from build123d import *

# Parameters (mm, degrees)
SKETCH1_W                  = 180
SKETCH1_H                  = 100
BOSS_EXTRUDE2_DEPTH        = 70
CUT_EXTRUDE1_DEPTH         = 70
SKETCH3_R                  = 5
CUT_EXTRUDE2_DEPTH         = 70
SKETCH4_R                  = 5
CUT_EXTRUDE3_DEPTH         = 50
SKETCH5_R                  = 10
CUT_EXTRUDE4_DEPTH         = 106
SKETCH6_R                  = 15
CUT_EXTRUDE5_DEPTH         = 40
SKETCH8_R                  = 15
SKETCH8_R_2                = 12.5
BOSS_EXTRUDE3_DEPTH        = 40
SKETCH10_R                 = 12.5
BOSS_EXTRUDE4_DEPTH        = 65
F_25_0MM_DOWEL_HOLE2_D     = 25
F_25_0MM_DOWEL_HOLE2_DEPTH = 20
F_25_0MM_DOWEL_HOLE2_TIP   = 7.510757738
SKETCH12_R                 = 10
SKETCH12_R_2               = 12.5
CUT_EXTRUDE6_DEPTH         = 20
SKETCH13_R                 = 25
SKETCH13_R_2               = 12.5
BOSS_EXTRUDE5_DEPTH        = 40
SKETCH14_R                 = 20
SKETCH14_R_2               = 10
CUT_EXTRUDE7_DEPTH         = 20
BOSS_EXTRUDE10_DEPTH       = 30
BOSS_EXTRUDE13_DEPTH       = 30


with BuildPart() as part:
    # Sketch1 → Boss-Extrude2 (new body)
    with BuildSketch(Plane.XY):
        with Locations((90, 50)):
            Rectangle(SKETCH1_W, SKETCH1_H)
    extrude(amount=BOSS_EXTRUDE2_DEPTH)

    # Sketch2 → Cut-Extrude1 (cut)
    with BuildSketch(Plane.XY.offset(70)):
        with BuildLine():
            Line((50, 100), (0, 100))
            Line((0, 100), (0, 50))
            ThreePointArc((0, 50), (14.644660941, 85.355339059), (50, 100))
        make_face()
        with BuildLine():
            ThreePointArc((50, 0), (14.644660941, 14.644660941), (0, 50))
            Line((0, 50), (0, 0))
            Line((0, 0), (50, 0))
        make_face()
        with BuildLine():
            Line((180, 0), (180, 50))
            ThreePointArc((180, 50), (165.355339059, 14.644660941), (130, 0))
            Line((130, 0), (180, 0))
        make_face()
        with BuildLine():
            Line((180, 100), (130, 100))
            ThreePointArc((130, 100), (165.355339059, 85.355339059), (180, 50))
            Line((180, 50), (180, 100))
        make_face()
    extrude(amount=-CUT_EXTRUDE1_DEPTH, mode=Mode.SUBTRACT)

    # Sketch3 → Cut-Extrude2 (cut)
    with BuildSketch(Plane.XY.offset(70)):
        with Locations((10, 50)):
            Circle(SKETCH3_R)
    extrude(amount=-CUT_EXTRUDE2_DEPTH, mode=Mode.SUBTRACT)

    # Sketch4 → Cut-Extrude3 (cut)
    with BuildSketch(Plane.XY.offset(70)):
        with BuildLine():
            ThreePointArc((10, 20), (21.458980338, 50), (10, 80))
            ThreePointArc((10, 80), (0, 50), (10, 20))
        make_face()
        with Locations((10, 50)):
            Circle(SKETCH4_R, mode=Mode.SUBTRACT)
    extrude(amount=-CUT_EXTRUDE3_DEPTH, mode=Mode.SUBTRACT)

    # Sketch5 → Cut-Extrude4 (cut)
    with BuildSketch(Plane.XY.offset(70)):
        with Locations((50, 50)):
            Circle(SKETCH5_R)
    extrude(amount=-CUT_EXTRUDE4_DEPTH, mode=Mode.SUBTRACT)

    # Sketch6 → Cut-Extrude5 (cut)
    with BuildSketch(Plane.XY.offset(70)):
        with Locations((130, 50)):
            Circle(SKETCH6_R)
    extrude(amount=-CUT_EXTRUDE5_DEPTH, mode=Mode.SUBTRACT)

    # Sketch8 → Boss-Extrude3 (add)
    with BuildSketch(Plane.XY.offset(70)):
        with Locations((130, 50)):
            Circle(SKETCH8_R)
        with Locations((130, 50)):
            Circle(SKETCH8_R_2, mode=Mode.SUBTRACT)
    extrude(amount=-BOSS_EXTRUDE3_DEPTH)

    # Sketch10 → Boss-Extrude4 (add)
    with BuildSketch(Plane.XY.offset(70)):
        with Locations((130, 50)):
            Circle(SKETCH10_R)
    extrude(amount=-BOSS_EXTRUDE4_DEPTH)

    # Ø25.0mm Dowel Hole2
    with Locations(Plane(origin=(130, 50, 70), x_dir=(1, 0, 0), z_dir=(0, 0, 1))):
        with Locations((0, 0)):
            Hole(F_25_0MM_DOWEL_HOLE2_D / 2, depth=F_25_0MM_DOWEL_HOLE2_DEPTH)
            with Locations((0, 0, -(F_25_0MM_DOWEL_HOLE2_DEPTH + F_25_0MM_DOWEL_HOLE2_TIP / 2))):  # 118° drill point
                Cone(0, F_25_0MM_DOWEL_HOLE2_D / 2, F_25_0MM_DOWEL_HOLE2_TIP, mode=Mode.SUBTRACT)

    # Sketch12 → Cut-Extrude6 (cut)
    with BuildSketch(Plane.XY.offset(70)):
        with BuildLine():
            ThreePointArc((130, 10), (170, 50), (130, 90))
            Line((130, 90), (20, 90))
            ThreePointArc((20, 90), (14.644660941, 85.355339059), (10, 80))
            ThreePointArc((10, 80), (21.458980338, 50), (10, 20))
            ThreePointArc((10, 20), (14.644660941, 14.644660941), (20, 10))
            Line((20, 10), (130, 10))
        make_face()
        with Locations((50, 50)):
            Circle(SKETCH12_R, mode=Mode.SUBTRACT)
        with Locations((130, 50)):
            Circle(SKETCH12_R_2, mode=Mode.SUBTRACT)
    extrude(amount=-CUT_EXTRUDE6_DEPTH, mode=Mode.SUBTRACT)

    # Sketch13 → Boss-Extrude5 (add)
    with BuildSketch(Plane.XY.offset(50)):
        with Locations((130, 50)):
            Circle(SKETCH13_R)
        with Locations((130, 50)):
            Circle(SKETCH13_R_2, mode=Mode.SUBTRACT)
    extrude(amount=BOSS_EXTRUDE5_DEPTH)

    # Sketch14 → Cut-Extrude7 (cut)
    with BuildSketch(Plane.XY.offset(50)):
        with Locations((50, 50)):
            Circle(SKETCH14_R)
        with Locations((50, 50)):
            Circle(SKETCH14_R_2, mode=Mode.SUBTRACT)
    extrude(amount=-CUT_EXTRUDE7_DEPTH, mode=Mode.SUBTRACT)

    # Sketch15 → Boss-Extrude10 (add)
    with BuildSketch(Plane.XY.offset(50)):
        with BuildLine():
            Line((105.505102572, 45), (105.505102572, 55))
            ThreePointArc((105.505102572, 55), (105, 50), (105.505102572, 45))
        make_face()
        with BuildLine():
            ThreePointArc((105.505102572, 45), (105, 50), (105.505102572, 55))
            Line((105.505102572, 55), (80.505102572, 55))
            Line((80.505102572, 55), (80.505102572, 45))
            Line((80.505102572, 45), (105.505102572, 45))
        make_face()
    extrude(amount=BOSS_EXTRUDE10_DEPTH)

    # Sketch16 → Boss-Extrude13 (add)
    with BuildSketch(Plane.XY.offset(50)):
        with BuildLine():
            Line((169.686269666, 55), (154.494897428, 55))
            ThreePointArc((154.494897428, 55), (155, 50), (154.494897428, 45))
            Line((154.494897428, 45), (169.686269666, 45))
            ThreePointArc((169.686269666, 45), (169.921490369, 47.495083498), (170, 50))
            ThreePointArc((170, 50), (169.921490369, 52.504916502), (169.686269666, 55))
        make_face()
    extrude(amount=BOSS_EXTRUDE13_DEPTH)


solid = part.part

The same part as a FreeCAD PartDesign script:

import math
import FreeCAD as App
import Part
import Sketcher

doc = App.newDocument("Part")
body = doc.addObject("PartDesign::Body", "Body")

# Sketch on XY plane
sketch1 = body.newObject("Sketcher::SketchObject", "Sketch")
sketch1.AttachmentSupport = (doc.getObject("XY_Plane"), [""])
sketch1.MapMode = "FlatFace"
sketch1.addGeometry(Part.LineSegment(App.Vector(0, 100, 0), App.Vector(0, 0, 0)), False)
sketch1.addGeometry(Part.LineSegment(App.Vector(0, 0, 0), App.Vector(180, 0, 0)), False)
sketch1.addGeometry(Part.LineSegment(App.Vector(180, 0, 0), App.Vector(180, 100, 0)), False)
sketch1.addGeometry(Part.LineSegment(App.Vector(180, 100, 0), App.Vector(0, 100, 0)), False)
sketch1.addConstraint(Sketcher.Constraint("Coincident", 0, 2, 1, 1))
sketch1.addConstraint(Sketcher.Constraint("Coincident", 1, 2, 2, 1))
sketch1.addConstraint(Sketcher.Constraint("Coincident", 2, 2, 3, 1))
sketch1.addConstraint(Sketcher.Constraint("Coincident", 3, 2, 0, 1))
sketch1.addConstraint(Sketcher.Constraint("Vertical", 0))
sketch1.addConstraint(Sketcher.Constraint("Horizontal", 1))
sketch1.addConstraint(Sketcher.Constraint("Vertical", 2))
sketch1.addConstraint(Sketcher.Constraint("Horizontal", 3))
sketch1.addConstraint(Sketcher.Constraint("Coincident", 0, 2, -1, 1))
sketch1.addConstraint(Sketcher.Constraint("DistanceX", 1, 1, 1, 2, 180.0))
sketch1.addConstraint(Sketcher.Constraint("DistanceY", 0, 2, 0, 1, 100.0))
pad1 = body.newObject("PartDesign::Pad", "Pad")
pad1.Profile = sketch1
pad1.Length = 70

# Sketch on XY plane
sketch2 = body.newObject("Sketcher::SketchObject", "Sketch001")
sketch2.AttachmentSupport = (doc.getObject("XY_Plane"), [""])
sketch2.MapMode = "FlatFace"
sketch2.AttachmentOffset = App.Placement(App.Vector(0, 0, 70), App.Rotation())
sketch2.addGeometry(Part.LineSegment(App.Vector(50, 100, 0), App.Vector(0, 100, 0)), False)
sketch2.addGeometry(Part.LineSegment(App.Vector(0, 100, 0), App.Vector(0, 50, 0)), False)
sketch2.addGeometry(Part.ArcOfCircle(Part.Circle(App.Vector(50, 50, 0), App.Vector(0, 0, 1), 50), math.radians(90), math.radians(180)), False)
sketch2.addGeometry(Part.ArcOfCircle(Part.Circle(App.Vector(50, 50, 0), App.Vector(0, 0, 1), 50), math.radians(-180), math.radians(-90)), False)
sketch2.addGeometry(Part.LineSegment(App.Vector(0, 50, 0), App.Vector(0, 0, 0)), False)
sketch2.addGeometry(Part.LineSegment(App.Vector(0, 0, 0), App.Vector(50, 0, 0)), False)
sketch2.addGeometry(Part.LineSegment(App.Vector(180, 0, 0), App.Vector(180, 50, 0)), False)
sketch2.addGeometry(Part.ArcOfCircle(Part.Circle(App.Vector(130, 50, 0), App.Vector(0, 0, 1), 50), math.radians(-90), math.radians(0)), False)
sketch2.addGeometry(Part.LineSegment(App.Vector(130, 0, 0), App.Vector(180, 0, 0)), False)
sketch2.addGeometry(Part.LineSegment(App.Vector(180, 100, 0), App.Vector(130, 100, 0)), False)
sketch2.addGeometry(Part.ArcOfCircle(Part.Circle(App.Vector(130, 50, 0), App.Vector(0, 0, 1), 50), math.radians(0), math.radians(90)), False)
sketch2.addGeometry(Part.LineSegment(App.Vector(180, 50, 0), App.Vector(180, 100, 0)), False)
sketch2.addConstraint(Sketcher.Constraint("Coincident", 0, 2, 1, 1))
sketch2.addConstraint(Sketcher.Constraint("Tangent", 1, 2, 2, 2))
sketch2.addConstraint(Sketcher.Constraint("Tangent", 2, 1, 0, 1))
sketch2.addConstraint(Sketcher.Constraint("Tangent", 3, 1, 4, 1))
sketch2.addConstraint(Sketcher.Constraint("Coincident", 4, 2, 5, 1))
sketch2.addConstraint(Sketcher.Constraint("Tangent", 5, 2, 3, 2))
sketch2.addConstraint(Sketcher.Constraint("Tangent", 6, 2, 7, 2))
sketch2.addConstraint(Sketcher.Constraint("Tangent", 7, 1, 8, 1))
sketch2.addConstraint(Sketcher.Constraint("Coincident", 8, 2, 6, 1))
sketch2.addConstraint(Sketcher.Constraint("Tangent", 9, 2, 10, 2))
sketch2.addConstraint(Sketcher.Constraint("Tangent", 10, 1, 11, 1))
sketch2.addConstraint(Sketcher.Constraint("Coincident", 11, 2, 9, 1))
sketch2.addConstraint(Sketcher.Constraint("Horizontal", 0))
sketch2.addConstraint(Sketcher.Constraint("Vertical", 1))
sketch2.addConstraint(Sketcher.Constraint("Vertical", 4))
sketch2.addConstraint(Sketcher.Constraint("Horizontal", 5))
sketch2.addConstraint(Sketcher.Constraint("Vertical", 6))
sketch2.addConstraint(Sketcher.Constraint("Horizontal", 8))
sketch2.addConstraint(Sketcher.Constraint("Horizontal", 9))
sketch2.addConstraint(Sketcher.Constraint("Vertical", 11))
sketch2.addConstraint(Sketcher.Constraint("Coincident", 4, 2, -1, 1))
sketch2.addConstraint(Sketcher.Constraint("Coincident", 3, 3, 2, 3))
sketch2.addConstraint(Sketcher.Constraint("Coincident", 10, 3, 7, 3))
sketch2.addConstraint(Sketcher.Constraint("Equal", 2, 3))
sketch2.addConstraint(Sketcher.Constraint("Equal", 3, 7))
sketch2.addConstraint(Sketcher.Constraint("Equal", 7, 10))
sketch2.addConstraint(Sketcher.Constraint("PointOnObject", 7, 1, -1))
sketch2.addConstraint(Sketcher.Constraint("Radius", 2, 50.0))
sketch2.addConstraint(Sketcher.Constraint("DistanceX", -1, 1, 7, 3, 130.0))
pocket1 = body.newObject("PartDesign::Pocket", "Pocket")
pocket1.Profile = sketch2
pocket1.Length = 70

# Sketch on XY plane
sketch3 = body.newObject("Sketcher::SketchObject", "Sketch002")
sketch3.AttachmentSupport = (doc.getObject("XY_Plane"), [""])
sketch3.MapMode = "FlatFace"
sketch3.AttachmentOffset = App.Placement(App.Vector(0, 0, 70), App.Rotation())
sketch3.addGeometry(Part.Circle(App.Vector(10, 50, 0), App.Vector(0, 0, 1), 5), False)
sketch3.addConstraint(Sketcher.Constraint("Diameter", 0, 10.0))
sketch3.addConstraint(Sketcher.Constraint("DistanceX", -1, 1, 0, 3, 10.0))
sketch3.addConstraint(Sketcher.Constraint("DistanceY", -1, 1, 0, 3, 50.0))
pocket2 = body.newObject("PartDesign::Pocket", "Pocket001")
pocket2.Profile = sketch3
pocket2.Length = 70

# Sketch on XY plane
sketch4 = body.newObject("Sketcher::SketchObject", "Sketch003")
sketch4.AttachmentSupport = (doc.getObject("XY_Plane"), [""])
sketch4.MapMode = "FlatFace"
sketch4.AttachmentOffset = App.Placement(App.Vector(0, 0, 70), App.Rotation())
sketch4.addGeometry(Part.ArcOfCircle(Part.Circle(App.Vector(-23.54102, 50, 0), App.Vector(0, 0, 1), 45), math.radians(-41.810315), math.radians(41.810315)), False)
sketch4.addGeometry(Part.ArcOfCircle(Part.Circle(App.Vector(50, 50, 0), App.Vector(0, 0, 1), 50), math.radians(143.130102), math.radians(216.869898)), False)
sketch4.addGeometry(Part.Circle(App.Vector(10, 50, 0), App.Vector(0, 0, 1), 5), False)
sketch4.addConstraint(Sketcher.Constraint("Coincident", 0, 1, 1, 2))
sketch4.addConstraint(Sketcher.Constraint("Coincident", 1, 1, 0, 2))
sketch4.addConstraint(Sketcher.Constraint("Horizontal", 0, 3, 1, 3))
sketch4.addConstraint(Sketcher.Constraint("Horizontal", 1, 3, 2, 3))
sketch4.addConstraint(Sketcher.Constraint("Vertical", 2, 3, 0, 1))
sketch4.addConstraint(Sketcher.Constraint("Diameter", 2, 10.0))
sketch4.addConstraint(Sketcher.Constraint("Radius", 0, 45.0))
sketch4.addConstraint(Sketcher.Constraint("Radius", 1, 50.0))
sketch4.addConstraint(Sketcher.Constraint("DistanceY", -1, 1, 0, 3, 50.0))
sketch4.addConstraint(Sketcher.Constraint("DistanceX", -1, 1, 1, 3, 50.0))
sketch4.addConstraint(Sketcher.Constraint("DistanceX", -1, 1, 2, 3, 10.0))
pocket3 = body.newObject("PartDesign::Pocket", "Pocket002")
pocket3.Profile = sketch4
pocket3.Length = 50

# Sketch on XY plane
sketch5 = body.newObject("Sketcher::SketchObject", "Sketch004")
sketch5.AttachmentSupport = (doc.getObject("XY_Plane"), [""])
sketch5.MapMode = "FlatFace"
sketch5.AttachmentOffset = App.Placement(App.Vector(0, 0, 70), App.Rotation())
sketch5.addGeometry(Part.Circle(App.Vector(50, 50, 0), App.Vector(0, 0, 1), 10), False)
sketch5.addConstraint(Sketcher.Constraint("Diameter", 0, 20.0))
sketch5.addConstraint(Sketcher.Constraint("DistanceX", -1, 1, 0, 3, 50.0))
sketch5.addConstraint(Sketcher.Constraint("DistanceY", -1, 1, 0, 3, 50.0))
pocket4 = body.newObject("PartDesign::Pocket", "Pocket003")
pocket4.Profile = sketch5
pocket4.Length = 106

# Sketch on XY plane
sketch6 = body.newObject("Sketcher::SketchObject", "Sketch005")
sketch6.AttachmentSupport = (doc.getObject("XY_Plane"), [""])
sketch6.MapMode = "FlatFace"
sketch6.AttachmentOffset = App.Placement(App.Vector(0, 0, 70), App.Rotation())
sketch6.addGeometry(Part.Circle(App.Vector(130, 50, 0), App.Vector(0, 0, 1), 15), False)
sketch6.addConstraint(Sketcher.Constraint("Diameter", 0, 30.0))
sketch6.addConstraint(Sketcher.Constraint("DistanceX", -1, 1, 0, 3, 130.0))
sketch6.addConstraint(Sketcher.Constraint("DistanceY", -1, 1, 0, 3, 50.0))
pocket5 = body.newObject("PartDesign::Pocket", "Pocket004")
pocket5.Profile = sketch6
pocket5.Length = 40

# Sketch on XY plane
sketch7 = body.newObject("Sketcher::SketchObject", "Sketch006")
sketch7.AttachmentSupport = (doc.getObject("XY_Plane"), [""])
sketch7.MapMode = "FlatFace"
sketch7.AttachmentOffset = App.Placement(App.Vector(0, 0, 70), App.Rotation())
sketch7.addGeometry(Part.Circle(App.Vector(130, 50, 0), App.Vector(0, 0, 1), 15), False)
sketch7.addGeometry(Part.Circle(App.Vector(130, 50, 0), App.Vector(0, 0, 1), 12.5), False)
sketch7.addConstraint(Sketcher.Constraint("Coincident", 1, 3, 0, 3))
sketch7.addConstraint(Sketcher.Constraint("Diameter", 0, 30.0))
sketch7.addConstraint(Sketcher.Constraint("Diameter", 1, 25.0))
sketch7.addConstraint(Sketcher.Constraint("DistanceX", -1, 1, 0, 3, 130.0))
sketch7.addConstraint(Sketcher.Constraint("DistanceY", -1, 1, 0, 3, 50.0))
pad2 = body.newObject("PartDesign::Pad", "Pad001")
pad2.Profile = sketch7
pad2.Length = 40
pad2.Reversed = True

# Sketch on XY plane
sketch8 = body.newObject("Sketcher::SketchObject", "Sketch007")
sketch8.AttachmentSupport = (doc.getObject("XY_Plane"), [""])
sketch8.MapMode = "FlatFace"
sketch8.AttachmentOffset = App.Placement(App.Vector(0, 0, 70), App.Rotation())
sketch8.addGeometry(Part.Circle(App.Vector(130, 50, 0), App.Vector(0, 0, 1), 12.5), False)
sketch8.addConstraint(Sketcher.Constraint("Diameter", 0, 25.0))
sketch8.addConstraint(Sketcher.Constraint("DistanceX", -1, 1, 0, 3, 130.0))
sketch8.addConstraint(Sketcher.Constraint("DistanceY", -1, 1, 0, 3, 50.0))
pad3 = body.newObject("PartDesign::Pad", "Pad002")
pad3.Profile = sketch8
pad3.Length = 65
pad3.Reversed = True

# Sketch on XY plane
sketch9 = body.newObject("Sketcher::SketchObject", "Sketch008")
sketch9.AttachmentSupport = (doc.getObject("XY_Plane"), [""])
sketch9.MapMode = "FlatFace"
sketch9.AttachmentOffset = App.Placement(App.Vector(0, 0, 70), App.Rotation())
sketch9.addGeometry(Part.Circle(App.Vector(130, 50, 0), App.Vector(0, 0, 1), 12.5), False)
sketch9.addConstraint(Sketcher.Constraint("Diameter", 0, 25.0))
sketch9.addConstraint(Sketcher.Constraint("DistanceX", -1, 1, 0, 3, 130.0))
sketch9.addConstraint(Sketcher.Constraint("DistanceY", -1, 1, 0, 3, 50.0))
doc.recompute()
hole = body.newObject("PartDesign::Hole", "Hole")
hole.Profile = sketch9
hole.ThreadType = "None"
hole.Diameter = 25
hole.DepthType = "Dimension"
hole.Depth = 20
hole.DrillPoint = "Angled"
hole.DrillPointAngle = 118

# Sketch on XY plane
sketch10 = body.newObject("Sketcher::SketchObject", "Sketch009")
sketch10.AttachmentSupport = (doc.getObject("XY_Plane"), [""])
sketch10.MapMode = "FlatFace"
sketch10.AttachmentOffset = App.Placement(App.Vector(0, 0, 70), App.Rotation())
sketch10.addGeometry(Part.ArcOfCircle(Part.Circle(App.Vector(130, 50, 0), App.Vector(0, 0, 1), 40), math.radians(-90), math.radians(90)), False)
sketch10.addGeometry(Part.LineSegment(App.Vector(130, 90, 0), App.Vector(20, 90, 0)), False)
sketch10.addGeometry(Part.ArcOfCircle(Part.Circle(App.Vector(50, 50, 0), App.Vector(0, 0, 1), 50), math.radians(126.869898), math.radians(143.130102)), False)
sketch10.addGeometry(Part.ArcOfCircle(Part.Circle(App.Vector(-23.54102, 50, 0), App.Vector(0, 0, 1), 45), math.radians(-41.810315), math.radians(41.810315)), False)
sketch10.addGeometry(Part.ArcOfCircle(Part.Circle(App.Vector(50, 50, 0), App.Vector(0, 0, 1), 50), math.radians(-143.130102), math.radians(-126.869898)), False)
sketch10.addGeometry(Part.LineSegment(App.Vector(20, 10, 0), App.Vector(130, 10, 0)), False)
sketch10.addGeometry(Part.Circle(App.Vector(50, 50, 0), App.Vector(0, 0, 1), 10), False)
sketch10.addGeometry(Part.Circle(App.Vector(130, 50, 0), App.Vector(0, 0, 1), 12.5), False)
sketch10.addConstraint(Sketcher.Constraint("Tangent", 0, 2, 1, 1))
sketch10.addConstraint(Sketcher.Constraint("Coincident", 1, 2, 2, 1))
sketch10.addConstraint(Sketcher.Constraint("Coincident", 2, 2, 3, 2))
sketch10.addConstraint(Sketcher.Constraint("Coincident", 3, 1, 4, 1))
sketch10.addConstraint(Sketcher.Constraint("Coincident", 4, 2, 5, 1))
sketch10.addConstraint(Sketcher.Constraint("Tangent", 5, 2, 0, 1))
sketch10.addConstraint(Sketcher.Constraint("Horizontal", 1))
sketch10.addConstraint(Sketcher.Constraint("Horizontal", 5))
sketch10.addConstraint(Sketcher.Constraint("Coincident", 4, 3, 2, 3))
sketch10.addConstraint(Sketcher.Constraint("Coincident", 6, 3, 2, 3))
sketch10.addConstraint(Sketcher.Constraint("Coincident", 7, 3, 0, 3))
sketch10.addConstraint(Sketcher.Constraint("Equal", 2, 4))
sketch10.addConstraint(Sketcher.Constraint("Horizontal", 0, 3, 2, 3))
sketch10.addConstraint(Sketcher.Constraint("Horizontal", 2, 3, 3, 3))
sketch10.addConstraint(Sketcher.Constraint("Diameter", 6, 20.0))
sketch10.addConstraint(Sketcher.Constraint("Diameter", 7, 25.0))
sketch10.addConstraint(Sketcher.Constraint("Radius", 0, 40.0))
sketch10.addConstraint(Sketcher.Constraint("Radius", 2, 50.0))
sketch10.addConstraint(Sketcher.Constraint("Radius", 3, 45.0))
sketch10.addConstraint(Sketcher.Constraint("DistanceX", 1, 2, 1, 1, 110.0))
sketch10.addConstraint(Sketcher.Constraint("DistanceX", -1, 1, 0, 3, 130.0))
sketch10.addConstraint(Sketcher.Constraint("DistanceY", -1, 1, 0, 3, 50.0))
sketch10.addConstraint(Sketcher.Constraint("DistanceX", -1, 1, 2, 2, 10.0))
pocket6 = body.newObject("PartDesign::Pocket", "Pocket005")
pocket6.Profile = sketch10
pocket6.Length = 20

# Sketch on XY plane
sketch11 = body.newObject("Sketcher::SketchObject", "Sketch010")
sketch11.AttachmentSupport = (doc.getObject("XY_Plane"), [""])
sketch11.MapMode = "FlatFace"
sketch11.AttachmentOffset = App.Placement(App.Vector(0, 0, 50), App.Rotation())
sketch11.addGeometry(Part.Circle(App.Vector(130, 50, 0), App.Vector(0, 0, 1), 25), False)
sketch11.addGeometry(Part.Circle(App.Vector(130, 50, 0), App.Vector(0, 0, 1), 12.5), False)
sketch11.addConstraint(Sketcher.Constraint("Coincident", 1, 3, 0, 3))
sketch11.addConstraint(Sketcher.Constraint("Diameter", 0, 50.0))
sketch11.addConstraint(Sketcher.Constraint("Diameter", 1, 25.0))
sketch11.addConstraint(Sketcher.Constraint("DistanceX", -1, 1, 0, 3, 130.0))
sketch11.addConstraint(Sketcher.Constraint("DistanceY", -1, 1, 0, 3, 50.0))
pad4 = body.newObject("PartDesign::Pad", "Pad003")
pad4.Profile = sketch11
pad4.Length = 40

# Sketch on XY plane
sketch12 = body.newObject("Sketcher::SketchObject", "Sketch011")
sketch12.AttachmentSupport = (doc.getObject("XY_Plane"), [""])
sketch12.MapMode = "FlatFace"
sketch12.AttachmentOffset = App.Placement(App.Vector(0, 0, 50), App.Rotation())
sketch12.addGeometry(Part.Circle(App.Vector(50, 50, 0), App.Vector(0, 0, 1), 20), False)
sketch12.addGeometry(Part.Circle(App.Vector(50, 50, 0), App.Vector(0, 0, 1), 10), False)
sketch12.addConstraint(Sketcher.Constraint("Coincident", 1, 3, 0, 3))
sketch12.addConstraint(Sketcher.Constraint("Diameter", 0, 40.0))
sketch12.addConstraint(Sketcher.Constraint("Diameter", 1, 20.0))
sketch12.addConstraint(Sketcher.Constraint("DistanceX", -1, 1, 0, 3, 50.0))
sketch12.addConstraint(Sketcher.Constraint("DistanceY", -1, 1, 0, 3, 50.0))
pocket7 = body.newObject("PartDesign::Pocket", "Pocket006")
pocket7.Profile = sketch12
pocket7.Length = 20

# Sketch on XY plane
sketch13 = body.newObject("Sketcher::SketchObject", "Sketch012")
sketch13.AttachmentSupport = (doc.getObject("XY_Plane"), [""])
sketch13.MapMode = "FlatFace"
sketch13.AttachmentOffset = App.Placement(App.Vector(0, 0, 50), App.Rotation())
sketch13.addGeometry(Part.LineSegment(App.Vector(105.505103, 45, 0), App.Vector(105.505103, 55, 0)), False)
sketch13.addGeometry(Part.LineSegment(App.Vector(105.505103, 55, 0), App.Vector(80.505103, 55, 0)), False)
sketch13.addGeometry(Part.LineSegment(App.Vector(80.505103, 55, 0), App.Vector(80.505103, 45, 0)), False)
sketch13.addGeometry(Part.LineSegment(App.Vector(80.505103, 45, 0), App.Vector(105.505103, 45, 0)), False)
sketch13.addConstraint(Sketcher.Constraint("Coincident", 0, 2, 1, 1))
sketch13.addConstraint(Sketcher.Constraint("Coincident", 1, 2, 2, 1))
sketch13.addConstraint(Sketcher.Constraint("Coincident", 2, 2, 3, 1))
sketch13.addConstraint(Sketcher.Constraint("Coincident", 3, 2, 0, 1))
sketch13.addConstraint(Sketcher.Constraint("Vertical", 0))
sketch13.addConstraint(Sketcher.Constraint("Horizontal", 1))
sketch13.addConstraint(Sketcher.Constraint("Vertical", 2))
sketch13.addConstraint(Sketcher.Constraint("Horizontal", 3))
sketch13.addConstraint(Sketcher.Constraint("DistanceX", 1, 2, 1, 1, 25.0))
sketch13.addConstraint(Sketcher.Constraint("DistanceY", 0, 1, 0, 2, 10.0))
sketch13.addConstraint(Sketcher.Constraint("DistanceY", -1, 1, 0, 2, 55.0))
sketch13.addConstraint(Sketcher.Constraint("DistanceX", -1, 1, 0, 2, 105.505103))
pad5 = body.newObject("PartDesign::Pad", "Pad004")
pad5.Profile = sketch13
pad5.Length = 30

# Sketch on XY plane
sketch14 = body.newObject("Sketcher::SketchObject", "Sketch013")
sketch14.AttachmentSupport = (doc.getObject("XY_Plane"), [""])
sketch14.MapMode = "FlatFace"
sketch14.AttachmentOffset = App.Placement(App.Vector(0, 0, 50), App.Rotation())
sketch14.addGeometry(Part.LineSegment(App.Vector(169.68627, 55, 0), App.Vector(154.494897, 55, 0)), False)
sketch14.addGeometry(Part.ArcOfCircle(Part.Circle(App.Vector(130, 50, 0), App.Vector(0, 0, 1), 25), math.radians(-11.536959), math.radians(11.536959)), False)
sketch14.addGeometry(Part.LineSegment(App.Vector(154.494897, 45, 0), App.Vector(169.68627, 45, 0)), False)
sketch14.addGeometry(Part.ArcOfCircle(Part.Circle(App.Vector(130, 50, 0), App.Vector(0, 0, 1), 40), math.radians(-7.180756), math.radians(0)), False)
sketch14.addGeometry(Part.ArcOfCircle(Part.Circle(App.Vector(130, 50, 0), App.Vector(0, 0, 1), 40), math.radians(0), math.radians(7.180756)), False)
sketch14.addConstraint(Sketcher.Constraint("Coincident", 0, 2, 1, 2))
sketch14.addConstraint(Sketcher.Constraint("Coincident", 1, 1, 2, 1))
sketch14.addConstraint(Sketcher.Constraint("Coincident", 2, 2, 3, 1))
sketch14.addConstraint(Sketcher.Constraint("Tangent", 3, 2, 4, 1))
sketch14.addConstraint(Sketcher.Constraint("Coincident", 4, 2, 0, 1))
sketch14.addConstraint(Sketcher.Constraint("Horizontal", 0))
sketch14.addConstraint(Sketcher.Constraint("Horizontal", 2))
sketch14.addConstraint(Sketcher.Constraint("Coincident", 3, 3, 1, 3))
sketch14.addConstraint(Sketcher.Constraint("Equal", 3, 4))
sketch14.addConstraint(Sketcher.Constraint("Horizontal", 4, 3, 3, 2))
sketch14.addConstraint(Sketcher.Constraint("Vertical", 0, 2, 1, 1))
sketch14.addConstraint(Sketcher.Constraint("Radius", 1, 25.0))
sketch14.addConstraint(Sketcher.Constraint("Radius", 3, 40.0))
sketch14.addConstraint(Sketcher.Constraint("DistanceX", -1, 1, 1, 3, 130.0))
sketch14.addConstraint(Sketcher.Constraint("DistanceY", -1, 1, 1, 3, 50.0))
sketch14.addConstraint(Sketcher.Constraint("DistanceY", -1, 1, 0, 2, 55.0))
pad6 = body.newObject("PartDesign::Pad", "Pad005")
pad6.Profile = sketch14
pad6.Length = 30

doc.recompute()
